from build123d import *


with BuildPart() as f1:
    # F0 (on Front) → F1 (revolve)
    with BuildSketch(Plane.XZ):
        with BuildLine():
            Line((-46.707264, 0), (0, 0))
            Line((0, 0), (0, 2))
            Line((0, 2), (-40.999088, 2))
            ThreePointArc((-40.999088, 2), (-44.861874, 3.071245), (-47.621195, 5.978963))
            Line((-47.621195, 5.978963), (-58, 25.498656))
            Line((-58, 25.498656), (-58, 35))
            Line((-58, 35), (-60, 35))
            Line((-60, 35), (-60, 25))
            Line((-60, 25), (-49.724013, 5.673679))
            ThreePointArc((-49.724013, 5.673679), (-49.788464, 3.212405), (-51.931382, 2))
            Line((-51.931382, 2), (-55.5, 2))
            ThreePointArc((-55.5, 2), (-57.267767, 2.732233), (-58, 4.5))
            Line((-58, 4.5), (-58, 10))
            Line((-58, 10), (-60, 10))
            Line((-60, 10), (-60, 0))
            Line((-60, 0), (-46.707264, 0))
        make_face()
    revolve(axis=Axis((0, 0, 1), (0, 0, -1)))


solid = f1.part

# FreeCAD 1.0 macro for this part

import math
import FreeCAD as App
import Part
import Sketcher

V = App.Vector
Q = App.Units.Quantity

doc = App.newDocument("Part")
body = doc.addObject("PartDesign::Body", "Body")

sketch1 = doc.addObject("Sketcher::SketchObject", "Sketch")
body.addObject(sketch1)
sketch1.AttachmentSupport = (doc.XZ_Plane, [""])
sketch1.MapMode = "FlatFace"
sketch1.addGeometry([
    Part.LineSegment(V(0, 0, 0), V(0, 2, 0)),
    Part.LineSegment(V(0, 2, 0), V(-41, 2, 0)),
    Part.ArcOfCircle(Part.Circle(V(-41, 9.5, 0), V(0, 0, 1), 7.5), math.radians(-152), math.radians(-90)),
    Part.LineSegment(V(-47.6, 6, 0), V(-58, 25.5, 0)),
    Part.LineSegment(V(-58, 25.5, 0), V(-58, 35, 0)),
    Part.LineSegment(V(-58, 35, 0), V(-60, 35, 0)),
    Part.LineSegment(V(-60, 35, 0), V(-60, 25, 0)),
    Part.LineSegment(V(-60, 25, 0), V(-49.7, 5.7, 0)),
    Part.ArcOfCircle(Part.Circle(V(-51.9, 4.5, 0), V(0, 0, 1), 2.5), math.radians(-90), math.radians(28)),
    Part.LineSegment(V(-51.9, 2, 0), V(-55.5, 2, 0)),
    Part.ArcOfCircle(Part.Circle(V(-55.5, 4.5, 0), V(0, 0, 1), 2.5), math.radians(180), math.radians(270)),
    Part.LineSegment(V(-58, 4.5, 0), V(-58, 10, 0)),
    Part.LineSegment(V(-58, 10, 0), V(-60, 10, 0)),
    Part.LineSegment(V(-60, 10, 0), V(-60, 0, 0)),
    Part.LineSegment(V(-60, 0, 0), V(0, 0, 0)),
], False)
sketch1.addConstraint([
    Sketcher.Constraint("Coincident", 0, 2, 1, 1),
    Sketcher.Constraint("Tangent", 1, 2, 2, 2),
    Sketcher.Constraint("Tangent", 2, 1, 3, 1),
    Sketcher.Constraint("Coincident", 3, 2, 4, 1),
    Sketcher.Constraint("Coincident", 4, 2, 5, 1),
    Sketcher.Constraint("Coincident", 5, 2, 6, 1),
    Sketcher.Constraint("Coincident", 6, 2, 7, 1),
    Sketcher.Constraint("Tangent", 7, 2, 8, 2),
    Sketcher.Constraint("Tangent", 8, 1, 9, 1),
    Sketcher.Constraint("Tangent", 9, 2, 10, 2),
    Sketcher.Constraint("Tangent", 10, 1, 11, 1),
    Sketcher.Constraint("Coincident", 11, 2, 12, 1),
    Sketcher.Constraint("Coincident", 12, 2, 13, 1),
    Sketcher.Constraint("Coincident", 13, 2, 14, 1),
    Sketcher.Constraint("Coincident", 14, 2, 0, 1),
    Sketcher.Constraint("Vertical", 0),
    Sketcher.Constraint("Horizontal", 1),
    Sketcher.Constraint("Vertical", 4),
    Sketcher.Constraint("Horizontal", 5),
    Sketcher.Constraint("Vertical", 6),
    Sketcher.Constraint("Horizontal", 9),
    Sketcher.Constraint("Vertical", 11),
    Sketcher.Constraint("Horizontal", 12),
    Sketcher.Constraint("Vertical", 13),
    Sketcher.Constraint("Horizontal", 14),
    Sketcher.Constraint("Coincident", 14, 2, -1, 1),
    Sketcher.Constraint("Equal", 8, 10),
    Sketcher.Constraint("Parallel", 3, 7),
    Sketcher.Constraint("Horizontal", 1, 2, 8, 1),
    Sketcher.Constraint("Vertical", 4, 2, 10, 1),
    Sketcher.Constraint("Vertical", 6, 2, 12, 2),
    Sketcher.Constraint("Equal", 12, 0),
    Sketcher.Constraint("Equal", 6, 13),
    Sketcher.Constraint("Radius", 2, Q("7.499998 mm")),
    Sketcher.Constraint("Radius", 8, Q("2.5 mm")),
    Sketcher.Constraint("DistanceX", 5, 2, 5, 1, Q("2 mm")),
    Sketcher.Constraint("DistanceX", 14, 1, 14, 2, Q("60 mm")),
    Sketcher.Constraint("DistanceY", 6, 2, 6, 1, Q("10 mm")),
    Sketcher.Constraint("Angle", 3, Q("118 deg")),
    Sketcher.Constraint("DistanceY", -1, 1, 4, 2, Q("35 mm")),
    Sketcher.Constraint("Distance", 3, Q("22.10742 mm")),
])
revolution = doc.addObject("PartDesign::Revolution", "Revolution")
body.addObject(revolution)
revolution.Profile = sketch1
revolution.ReferenceAxis = (sketch1, ["V_Axis"])
revolution.Angle = 360

doc.recompute()
